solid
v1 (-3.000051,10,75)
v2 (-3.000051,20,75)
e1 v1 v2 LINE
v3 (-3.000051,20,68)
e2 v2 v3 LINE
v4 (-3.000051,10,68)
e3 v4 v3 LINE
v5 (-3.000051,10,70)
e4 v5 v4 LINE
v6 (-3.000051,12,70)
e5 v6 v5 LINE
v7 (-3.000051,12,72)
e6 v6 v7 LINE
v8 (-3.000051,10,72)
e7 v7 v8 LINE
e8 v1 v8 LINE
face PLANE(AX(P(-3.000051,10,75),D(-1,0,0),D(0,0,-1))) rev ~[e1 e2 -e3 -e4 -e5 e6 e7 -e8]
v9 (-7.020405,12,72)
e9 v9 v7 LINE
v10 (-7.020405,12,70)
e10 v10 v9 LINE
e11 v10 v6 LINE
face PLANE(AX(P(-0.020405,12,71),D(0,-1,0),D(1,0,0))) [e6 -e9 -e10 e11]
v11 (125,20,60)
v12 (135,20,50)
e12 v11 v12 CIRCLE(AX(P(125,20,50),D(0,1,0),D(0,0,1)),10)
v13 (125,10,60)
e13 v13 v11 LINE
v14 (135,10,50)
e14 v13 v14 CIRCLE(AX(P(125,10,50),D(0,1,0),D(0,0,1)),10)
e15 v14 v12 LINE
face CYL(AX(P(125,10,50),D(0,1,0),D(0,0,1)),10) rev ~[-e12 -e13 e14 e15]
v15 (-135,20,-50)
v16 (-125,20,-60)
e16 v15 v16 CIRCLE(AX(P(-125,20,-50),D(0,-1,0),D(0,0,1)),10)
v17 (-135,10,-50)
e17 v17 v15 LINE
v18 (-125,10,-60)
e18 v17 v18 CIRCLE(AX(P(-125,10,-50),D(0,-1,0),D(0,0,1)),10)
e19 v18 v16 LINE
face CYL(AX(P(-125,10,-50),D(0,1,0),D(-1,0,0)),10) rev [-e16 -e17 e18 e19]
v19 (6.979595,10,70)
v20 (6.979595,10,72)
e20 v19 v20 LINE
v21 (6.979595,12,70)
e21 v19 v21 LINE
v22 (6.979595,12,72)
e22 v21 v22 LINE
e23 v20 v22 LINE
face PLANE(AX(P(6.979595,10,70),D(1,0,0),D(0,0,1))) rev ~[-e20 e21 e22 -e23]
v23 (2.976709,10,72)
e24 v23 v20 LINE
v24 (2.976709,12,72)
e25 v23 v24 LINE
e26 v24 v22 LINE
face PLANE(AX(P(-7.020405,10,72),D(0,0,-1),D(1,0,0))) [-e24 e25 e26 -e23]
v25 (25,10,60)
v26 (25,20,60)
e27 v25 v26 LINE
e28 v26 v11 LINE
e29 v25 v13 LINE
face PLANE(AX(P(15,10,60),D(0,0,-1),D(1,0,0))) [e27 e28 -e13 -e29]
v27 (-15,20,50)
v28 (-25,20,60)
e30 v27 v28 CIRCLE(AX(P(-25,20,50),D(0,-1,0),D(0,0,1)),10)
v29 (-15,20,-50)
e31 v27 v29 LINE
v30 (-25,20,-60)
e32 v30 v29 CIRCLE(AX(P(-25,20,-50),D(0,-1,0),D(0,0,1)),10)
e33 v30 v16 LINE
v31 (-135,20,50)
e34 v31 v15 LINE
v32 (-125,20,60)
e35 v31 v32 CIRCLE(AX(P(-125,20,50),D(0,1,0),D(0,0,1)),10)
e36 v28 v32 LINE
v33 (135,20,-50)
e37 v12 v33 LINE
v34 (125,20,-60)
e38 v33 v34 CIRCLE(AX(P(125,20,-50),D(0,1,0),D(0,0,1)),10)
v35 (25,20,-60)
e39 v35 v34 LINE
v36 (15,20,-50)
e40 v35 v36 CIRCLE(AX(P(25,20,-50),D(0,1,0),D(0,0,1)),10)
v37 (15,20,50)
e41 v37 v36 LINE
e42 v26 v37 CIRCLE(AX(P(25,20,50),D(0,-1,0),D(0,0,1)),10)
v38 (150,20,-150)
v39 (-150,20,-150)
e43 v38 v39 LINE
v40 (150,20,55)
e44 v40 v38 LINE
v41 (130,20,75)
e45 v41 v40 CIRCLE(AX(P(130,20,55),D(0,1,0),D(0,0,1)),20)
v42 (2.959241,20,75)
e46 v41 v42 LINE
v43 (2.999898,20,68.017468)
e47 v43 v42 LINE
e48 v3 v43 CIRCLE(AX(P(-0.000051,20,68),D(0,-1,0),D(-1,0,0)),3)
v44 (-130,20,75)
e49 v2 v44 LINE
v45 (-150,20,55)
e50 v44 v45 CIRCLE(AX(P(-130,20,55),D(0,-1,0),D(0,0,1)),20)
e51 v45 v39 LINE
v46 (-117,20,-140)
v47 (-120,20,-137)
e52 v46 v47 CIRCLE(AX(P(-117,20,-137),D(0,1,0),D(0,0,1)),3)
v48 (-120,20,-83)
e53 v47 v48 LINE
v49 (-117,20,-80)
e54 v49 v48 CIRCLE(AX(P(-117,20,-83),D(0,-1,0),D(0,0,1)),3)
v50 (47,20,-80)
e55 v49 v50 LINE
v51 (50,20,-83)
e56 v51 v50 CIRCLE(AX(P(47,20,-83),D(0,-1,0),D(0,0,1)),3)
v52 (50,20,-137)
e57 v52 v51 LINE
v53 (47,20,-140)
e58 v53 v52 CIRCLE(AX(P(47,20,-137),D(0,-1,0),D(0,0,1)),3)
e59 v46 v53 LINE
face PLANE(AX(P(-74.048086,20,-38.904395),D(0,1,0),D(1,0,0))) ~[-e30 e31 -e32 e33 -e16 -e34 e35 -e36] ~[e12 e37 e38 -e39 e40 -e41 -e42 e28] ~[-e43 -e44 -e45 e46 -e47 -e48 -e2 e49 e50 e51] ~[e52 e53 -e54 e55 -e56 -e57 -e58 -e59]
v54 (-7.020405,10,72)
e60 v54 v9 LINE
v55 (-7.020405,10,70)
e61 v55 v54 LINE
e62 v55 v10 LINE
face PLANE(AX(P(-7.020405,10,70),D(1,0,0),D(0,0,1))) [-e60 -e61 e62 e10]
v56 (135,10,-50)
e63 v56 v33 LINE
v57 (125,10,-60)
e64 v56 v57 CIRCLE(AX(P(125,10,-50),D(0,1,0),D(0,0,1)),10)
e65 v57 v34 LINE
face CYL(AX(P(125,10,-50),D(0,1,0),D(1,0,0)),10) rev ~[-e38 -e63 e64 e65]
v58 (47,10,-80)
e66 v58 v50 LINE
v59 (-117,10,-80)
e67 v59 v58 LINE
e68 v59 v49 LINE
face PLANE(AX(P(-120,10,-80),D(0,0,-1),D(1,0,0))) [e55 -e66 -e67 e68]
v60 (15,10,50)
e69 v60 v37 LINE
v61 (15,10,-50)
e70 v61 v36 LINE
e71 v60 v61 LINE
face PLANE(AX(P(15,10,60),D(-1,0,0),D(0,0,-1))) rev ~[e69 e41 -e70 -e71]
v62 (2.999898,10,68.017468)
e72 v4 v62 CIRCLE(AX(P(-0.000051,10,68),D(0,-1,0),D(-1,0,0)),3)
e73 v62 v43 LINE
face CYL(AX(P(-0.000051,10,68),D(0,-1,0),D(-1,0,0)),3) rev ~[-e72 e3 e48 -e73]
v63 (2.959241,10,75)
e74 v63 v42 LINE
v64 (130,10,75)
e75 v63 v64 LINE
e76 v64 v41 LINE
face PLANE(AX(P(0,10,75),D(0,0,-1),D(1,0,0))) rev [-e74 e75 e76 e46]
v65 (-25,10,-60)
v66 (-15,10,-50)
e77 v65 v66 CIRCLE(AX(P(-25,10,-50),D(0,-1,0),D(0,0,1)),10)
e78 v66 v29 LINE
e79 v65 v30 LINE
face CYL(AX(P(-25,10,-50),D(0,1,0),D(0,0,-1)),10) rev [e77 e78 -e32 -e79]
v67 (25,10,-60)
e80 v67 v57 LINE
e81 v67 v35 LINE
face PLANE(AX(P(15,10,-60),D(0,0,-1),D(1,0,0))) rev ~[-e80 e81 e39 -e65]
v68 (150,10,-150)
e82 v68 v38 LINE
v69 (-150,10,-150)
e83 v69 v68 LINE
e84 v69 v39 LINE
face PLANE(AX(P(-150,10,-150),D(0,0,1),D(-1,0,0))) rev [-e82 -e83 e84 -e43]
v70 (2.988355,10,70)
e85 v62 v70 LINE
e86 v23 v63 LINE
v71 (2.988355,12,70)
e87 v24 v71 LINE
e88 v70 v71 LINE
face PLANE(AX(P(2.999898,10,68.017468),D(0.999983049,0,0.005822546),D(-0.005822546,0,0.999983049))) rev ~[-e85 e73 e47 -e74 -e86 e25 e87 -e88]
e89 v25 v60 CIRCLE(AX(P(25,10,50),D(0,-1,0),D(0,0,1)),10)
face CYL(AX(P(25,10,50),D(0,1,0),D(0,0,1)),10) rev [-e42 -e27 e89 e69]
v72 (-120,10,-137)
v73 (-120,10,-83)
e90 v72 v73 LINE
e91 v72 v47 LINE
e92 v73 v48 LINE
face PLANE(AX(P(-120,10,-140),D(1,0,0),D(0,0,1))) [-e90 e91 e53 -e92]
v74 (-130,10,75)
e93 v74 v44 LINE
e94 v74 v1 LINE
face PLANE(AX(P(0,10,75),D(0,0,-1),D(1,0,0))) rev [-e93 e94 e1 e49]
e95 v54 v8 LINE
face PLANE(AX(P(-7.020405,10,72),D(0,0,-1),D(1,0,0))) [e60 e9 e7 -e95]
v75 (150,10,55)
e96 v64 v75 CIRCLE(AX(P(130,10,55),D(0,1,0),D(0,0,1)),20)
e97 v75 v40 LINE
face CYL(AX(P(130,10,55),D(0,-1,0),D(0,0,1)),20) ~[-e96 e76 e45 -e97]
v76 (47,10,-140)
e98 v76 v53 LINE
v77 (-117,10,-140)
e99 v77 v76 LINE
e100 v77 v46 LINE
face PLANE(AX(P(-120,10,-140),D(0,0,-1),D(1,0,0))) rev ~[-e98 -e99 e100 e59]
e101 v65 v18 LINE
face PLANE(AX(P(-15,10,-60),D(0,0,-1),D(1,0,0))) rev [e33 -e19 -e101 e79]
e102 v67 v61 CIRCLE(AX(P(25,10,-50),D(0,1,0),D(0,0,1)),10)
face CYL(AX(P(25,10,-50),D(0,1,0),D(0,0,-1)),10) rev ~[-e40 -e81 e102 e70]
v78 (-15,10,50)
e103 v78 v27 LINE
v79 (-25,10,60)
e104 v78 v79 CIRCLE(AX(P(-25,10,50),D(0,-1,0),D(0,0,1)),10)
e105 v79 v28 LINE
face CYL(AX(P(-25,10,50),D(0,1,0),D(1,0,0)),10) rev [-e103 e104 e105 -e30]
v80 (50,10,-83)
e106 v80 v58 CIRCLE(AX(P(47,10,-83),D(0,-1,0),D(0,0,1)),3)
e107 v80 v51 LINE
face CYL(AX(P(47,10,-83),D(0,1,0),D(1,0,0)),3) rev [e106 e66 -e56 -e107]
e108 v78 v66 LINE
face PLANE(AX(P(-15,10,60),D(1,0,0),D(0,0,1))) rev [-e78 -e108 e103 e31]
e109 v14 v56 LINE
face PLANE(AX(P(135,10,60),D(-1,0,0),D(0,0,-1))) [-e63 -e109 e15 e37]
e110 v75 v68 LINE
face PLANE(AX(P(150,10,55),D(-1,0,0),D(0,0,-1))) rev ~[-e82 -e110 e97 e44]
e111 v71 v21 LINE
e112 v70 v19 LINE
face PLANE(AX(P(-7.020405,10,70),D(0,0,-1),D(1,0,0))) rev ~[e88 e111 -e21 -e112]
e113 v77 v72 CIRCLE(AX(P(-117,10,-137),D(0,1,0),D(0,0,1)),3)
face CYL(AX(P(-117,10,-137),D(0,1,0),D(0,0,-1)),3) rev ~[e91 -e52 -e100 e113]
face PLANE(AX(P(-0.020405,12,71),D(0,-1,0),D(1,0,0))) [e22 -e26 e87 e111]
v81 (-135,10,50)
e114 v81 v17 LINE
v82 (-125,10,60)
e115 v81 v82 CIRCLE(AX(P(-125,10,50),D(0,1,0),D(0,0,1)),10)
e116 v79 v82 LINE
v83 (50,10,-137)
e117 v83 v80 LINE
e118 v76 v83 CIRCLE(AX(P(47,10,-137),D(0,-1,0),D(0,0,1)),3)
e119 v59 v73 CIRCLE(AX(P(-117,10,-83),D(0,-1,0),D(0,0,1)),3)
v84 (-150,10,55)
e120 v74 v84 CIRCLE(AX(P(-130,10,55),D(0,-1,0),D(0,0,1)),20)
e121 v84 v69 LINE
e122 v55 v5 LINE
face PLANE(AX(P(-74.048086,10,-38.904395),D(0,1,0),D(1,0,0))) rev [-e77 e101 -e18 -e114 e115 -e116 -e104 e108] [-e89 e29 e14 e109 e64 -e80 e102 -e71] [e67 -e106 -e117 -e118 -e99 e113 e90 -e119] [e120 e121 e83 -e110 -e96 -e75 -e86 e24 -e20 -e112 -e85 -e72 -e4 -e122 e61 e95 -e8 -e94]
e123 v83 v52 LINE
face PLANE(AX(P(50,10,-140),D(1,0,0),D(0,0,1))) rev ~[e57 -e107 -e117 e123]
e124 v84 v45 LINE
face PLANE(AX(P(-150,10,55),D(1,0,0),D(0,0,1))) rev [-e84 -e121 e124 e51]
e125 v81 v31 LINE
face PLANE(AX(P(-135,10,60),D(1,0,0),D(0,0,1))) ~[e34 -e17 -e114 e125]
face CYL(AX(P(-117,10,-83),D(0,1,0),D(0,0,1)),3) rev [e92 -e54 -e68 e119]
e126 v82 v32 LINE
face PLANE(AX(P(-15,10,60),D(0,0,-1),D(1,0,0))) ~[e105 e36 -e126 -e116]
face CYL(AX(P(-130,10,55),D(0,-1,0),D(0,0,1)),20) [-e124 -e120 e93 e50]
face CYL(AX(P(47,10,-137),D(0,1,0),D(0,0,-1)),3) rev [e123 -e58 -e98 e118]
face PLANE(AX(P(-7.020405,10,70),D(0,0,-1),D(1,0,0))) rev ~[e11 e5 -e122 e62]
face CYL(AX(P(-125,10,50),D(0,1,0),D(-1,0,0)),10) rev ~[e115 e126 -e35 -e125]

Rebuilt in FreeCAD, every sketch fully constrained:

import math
import FreeCAD as App
import Part
import Sketcher
from FreeCAD import Vector
Q = App.Units.Quantity


def edges_at(feature, points):
    """Names of the edges that pass closest to the given points."""
    edges = feature.Shape.Edges
    near = lambda p: min(range(len(edges)), key=lambda i: edges[i].distToShape(Part.Vertex(*p))[0])
    return sorted({f"Edge{near(p) + 1}" for p in points})


def add_polygon(sketch, points):
    """Adds a closed chain of lines whose ends are joined by coincident constraints."""
    first, n = sketch.GeometryCount, len(points)
    for a, b in zip(points, points[1:] + points[:1]):
        sketch.addGeometry(Part.LineSegment(App.Vector(*a, 0), App.Vector(*b, 0)), False)
    for i in range(n):
        sketch.addConstraint(Sketcher.Constraint("Coincident", first + i, 2, first + (i + 1) % n, 1))

doc = App.newDocument("Part")
body = doc.addObject("PartDesign::Body", "Body")

# Sketch on XZ plane
sketch1 = body.newObject("Sketcher::SketchObject", "Sketch")
sketch1.AttachmentSupport = (doc.getObject("XZ_Plane"), [""])
sketch1.MapMode = "FlatFace"
sketch1.AttachmentOffset = App.Placement(Vector(0, 0, -10), App.Rotation())
sketch1.addGeometry(Part.LineSegment(Vector(0, 75, 0), Vector(130, 75, 0)), False)  # 0
sketch1.addGeometry(Part.ArcOfCircle(Part.Circle(Vector(130, 55, 0), Vector(0, 0, 1), 20), math.radians(0), math.radians(90)), False)  # 1
sketch1.addGeometry(Part.LineSegment(Vector(150, 55, 0), Vector(150, -150, 0)), False)  # 2
sketch1.addGeometry(Part.LineSegment(Vector(150, -150, 0), Vector(0, -150, 0)), False)  # 3
sketch1.addGeometry(Part.LineSegment(Vector(0, -150, 0), Vector(0, 75, 0)), False)  # 4
add_polygon(sketch1, [(135, 60), (15, 60), (15, -60), (135, -60)])  # lines 5-8
sketch1.addConstraint([
    Sketcher.Constraint("Tangent", 0, 2, 1, 2),
    Sketcher.Constraint("Tangent", 1, 1, 2, 1),
    Sketcher.Constraint("Coincident", 2, 2, 3, 1),
    Sketcher.Constraint("Coincident", 3, 2, 4, 1),
    Sketcher.Constraint("Coincident", 4, 2, 0, 1),
    Sketcher.Constraint("Horizontal", 0),
    Sketcher.Constraint("Vertical", 2),
    Sketcher.Constraint("Horizontal", 3),
    Sketcher.Constraint("Vertical", 4),
    Sketcher.Constraint("Horizontal", 5),
    Sketcher.Constraint("Vertical", 6),
    Sketcher.Constraint("Horizontal", 7),
    Sketcher.Constraint("Vertical", 8),
    Sketcher.Constraint("PointOnObject", 3, 2, -2),
    Sketcher.Constraint("Equal", 7, 6),
    Sketcher.Constraint("Radius", 1, Q("20 mm")),
    Sketcher.Constraint("DistanceX", 0, 1, 0, 2, Q("130 mm")),
    Sketcher.Constraint("DistanceX", 5, 2, 5, 1, Q("120 mm")),
    Sketcher.Constraint("DistanceY", 2, 2, 2, 1, Q("205 mm")),
    Sketcher.Constraint("DistanceY", -1, 1, 1, 3, Q("55 mm")),
    Sketcher.Constraint("DistanceX", -1, 1, 5, 2, Q("15 mm")),
    Sketcher.Constraint("DistanceY", -1, 1, 5, 2, Q("60 mm")),
])
pad1 = body.newObject("PartDesign::Pad", "Pad")
pad1.Profile = sketch1
pad1.Length = 10
pad1.Reversed = True
doc.recompute()

fillet = body.newObject("PartDesign::Fillet", "Fillet")
fillet.Base = (pad1, edges_at(pad1, [
    (15, 15, -60),
    (15, 15, 60),
    (135, 15, 60),
    (135, 15, -60),
]))
fillet.Radius = 10
doc.recompute()

mirrored = body.newObject("PartDesign::Mirrored", "Mirrored")
mirrored.Originals = [pad1]
mirrored.MirrorPlane = (doc.getObject("YZ_Plane"), [""])
body.Tip = mirrored
doc.recompute()

fillet2 = body.newObject("PartDesign::Fillet", "Fillet001")
fillet2.Base = (mirrored, edges_at(mirrored, [
    (-15, 15, -60),
    (-15, 15, 60),
    (-135, 15, 60),
    (-135, 15, -60),
]))
fillet2.Radius = 10

# Sketch on XZ plane
sketch2 = body.newObject("Sketcher::SketchObject", "Sketch001")
sketch2.AttachmentSupport = (doc.getObject("XZ_Plane"), [""])
sketch2.MapMode = "FlatFace"
sketch2.AttachmentOffset = App.Placement(Vector(0, 0, -10), App.Rotation())
add_polygon(sketch2, [(-120, -80), (-120, -140), (50, -140), (50, -80)])  # lines 0-3
sketch2.addConstraint([
    Sketcher.Constraint("Vertical", 0),
    Sketcher.Constraint("Horizontal", 1),
    Sketcher.Constraint("Vertical", 2),
    Sketcher.Constraint("Horizontal", 3),
    Sketcher.Constraint("DistanceX", 1, 1, 1, 2, Q("170 mm")),
    Sketcher.Constraint("DistanceY", 0, 2, 0, 1, Q("60 mm")),
    Sketcher.Constraint("DistanceX", 0, 2, -1, 1, Q("120 mm")),
    Sketcher.Constraint("DistanceY", 0, 2, -1, 1, Q("140 mm")),
])
pocket1 = body.newObject("PartDesign::Pocket", "Pocket")
pocket1.Profile = sketch2
pocket1.Length = 10
doc.recompute()

fillet3 = body.newObject("PartDesign::Fillet", "Fillet002")
fillet3.Base = (pocket1, edges_at(pocket1, [
    (-120, 15, -140),
    (-120, 15, -80),
    (50, 15, -80),
    (50, 15, -140),
]))
fillet3.Radius = 3

# Sketch on XZ plane
sketch3 = body.newObject("Sketcher::SketchObject", "Sketch002")
sketch3.AttachmentSupport = (doc.getObject("XZ_Plane"), [""])
sketch3.MapMode = "FlatFace"
sketch3.AttachmentOffset = App.Placement(Vector(0, 0, -10), App.Rotation())
sketch3.addGeometry([
    Part.LineSegment(Vector(-3, 75, 0), Vector(-3, 68, 0)),
    Part.ArcOfCircle(Part.Circle(Vector(0, 68, 0), Vector(0, 0, 1), 3), math.radians(180), math.radians(360)),
    Part.LineSegment(Vector(3, 68, 0), Vector(3, 75, 0)),
    Part.LineSegment(Vector(3, 75, 0), Vector(-3, 75, 0)),
], False)
sketch3.addConstraint([
    Sketcher.Constraint("Tangent", 0, 2, 1, 1),
    Sketcher.Constraint("Tangent", 1, 2, 2, 1),
    Sketcher.Constraint("Coincident", 2, 2, 3, 1),
    Sketcher.Constraint("Coincident", 3, 2, 0, 1),
    Sketcher.Constraint("Vertical", 0),
    Sketcher.Constraint("Horizontal", 3),
    Sketcher.Constraint("Radius", 1, Q("3 mm")),
    Sketcher.Constraint("DistanceY", 0, 2, 0, 1, Q("7 mm")),
    Sketcher.Constraint("DistanceY", -1, 1, 1, 3, Q("68 mm")),
    Sketcher.Constraint("DistanceX", -1, 1, 1, 2, Q("2.999898 mm")),
    Sketcher.Constraint("Distance", 2, Q("6.982651 mm")),
])
pocket2 = body.newObject("PartDesign::Pocket", "Pocket001")
pocket2.Profile = sketch3
pocket2.Length = 10

# Sketch on XZ plane
sketch4 = body.newObject("Sketcher::SketchObject", "Sketch003")
sketch4.AttachmentSupport = (doc.getObject("XZ_Plane"), [""])
sketch4.MapMode = "FlatFace"
sketch4.AttachmentOffset = App.Placement(Vector(0, 0, -10), App.Rotation())
add_polygon(sketch4, [(-7, 72), (-7, 70), (7, 70), (7, 72)])  # lines 0-3
sketch4.addConstraint([
    Sketcher.Constraint("Vertical", 0),
    Sketcher.Constraint("Horizontal", 1),
    Sketcher.Constraint("Vertical", 2),
    Sketcher.Constraint("Horizontal", 3),
    Sketcher.Constraint("DistanceX", 1, 1, 1, 2, Q("14 mm")),
    Sketcher.Constraint("DistanceY", 0, 2, 0, 1, Q("2 mm")),
    Sketcher.Constraint("DistanceY", -1, 1, 0, 2, Q("70 mm")),
    Sketcher.Constraint("DistanceX", 0, 2, -1, 1, Q("7.020405 mm")),
])
pocket3 = body.newObject("PartDesign::Pocket", "Pocket002")
pocket3.Profile = sketch4
pocket3.Length = 2

doc.recompute()
